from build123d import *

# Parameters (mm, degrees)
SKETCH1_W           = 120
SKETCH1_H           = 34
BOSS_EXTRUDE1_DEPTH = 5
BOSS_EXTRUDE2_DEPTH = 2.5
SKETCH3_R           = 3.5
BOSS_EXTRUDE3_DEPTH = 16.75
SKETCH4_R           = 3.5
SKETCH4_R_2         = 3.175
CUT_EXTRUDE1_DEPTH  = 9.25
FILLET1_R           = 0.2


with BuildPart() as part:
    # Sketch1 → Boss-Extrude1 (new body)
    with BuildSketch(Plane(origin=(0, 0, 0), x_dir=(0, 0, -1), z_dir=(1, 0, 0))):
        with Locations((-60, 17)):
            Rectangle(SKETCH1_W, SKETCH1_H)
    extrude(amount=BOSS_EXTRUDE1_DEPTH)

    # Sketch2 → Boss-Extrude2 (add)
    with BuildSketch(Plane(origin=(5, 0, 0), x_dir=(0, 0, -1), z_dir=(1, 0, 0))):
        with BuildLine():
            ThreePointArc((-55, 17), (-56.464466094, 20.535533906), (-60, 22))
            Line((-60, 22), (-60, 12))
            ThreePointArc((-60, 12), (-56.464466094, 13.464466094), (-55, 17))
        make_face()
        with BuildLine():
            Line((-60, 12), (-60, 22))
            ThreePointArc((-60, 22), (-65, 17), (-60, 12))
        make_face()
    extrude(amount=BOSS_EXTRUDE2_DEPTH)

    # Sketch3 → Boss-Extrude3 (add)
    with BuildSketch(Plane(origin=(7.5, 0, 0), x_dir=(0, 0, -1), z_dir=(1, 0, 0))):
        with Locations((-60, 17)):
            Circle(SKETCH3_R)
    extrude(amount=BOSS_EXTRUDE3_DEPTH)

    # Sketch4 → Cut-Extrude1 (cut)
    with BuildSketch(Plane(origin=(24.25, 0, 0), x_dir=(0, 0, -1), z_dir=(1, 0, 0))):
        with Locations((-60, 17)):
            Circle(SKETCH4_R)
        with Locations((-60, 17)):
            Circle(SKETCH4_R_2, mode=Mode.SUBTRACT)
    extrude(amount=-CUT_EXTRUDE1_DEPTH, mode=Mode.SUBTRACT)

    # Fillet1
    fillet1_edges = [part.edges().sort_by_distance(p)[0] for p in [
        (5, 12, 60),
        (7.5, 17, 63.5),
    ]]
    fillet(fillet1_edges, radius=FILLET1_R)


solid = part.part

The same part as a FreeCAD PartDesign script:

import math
import FreeCAD as App
import Part
import Sketcher

V = App.Vector


def edges_at(feature, points):
    """Names of the edges that pass closest to the given points."""
    edges = feature.Shape.Edges
    near = lambda p: min(range(len(edges)), key=lambda i: edges[i].distToShape(Part.Vertex(*p))[0])
    return sorted({f"Edge{near(p) + 1}" for p in points})


def add_polygon(sketch, points):
    """Adds a closed chain of lines whose ends are joined by coincident constraints."""
    first, n = sketch.GeometryCount, len(points)
    for a, b in zip(points, points[1:] + points[:1]):
        sketch.addGeometry(Part.LineSegment(App.Vector(*a, 0), App.Vector(*b, 0)), False)
    for i in range(n):
        sketch.addConstraint(Sketcher.Constraint("Coincident", first + i, 2, first + (i + 1) % n, 1))

doc = App.newDocument("Part")
body = doc.addObject("PartDesign::Body", "Body")

# Sketch on YZ plane
sketch1 = doc.addObject("Sketcher::SketchObject", "Sketch")
body.addObject(sketch1)
sketch1.AttachmentSupport = (doc.YZ_Plane, [""])
sketch1.MapMode = "FlatFace"
add_polygon(sketch1, [(34, 120), (0, 120), (0, 0), (34, 0)])  # lines 0-3
sketch1.addConstraint(Sketcher.Constraint("Horizontal", 0))
sketch1.addConstraint(Sketcher.Constraint("Vertical", 1))
sketch1.addConstraint(Sketcher.Constraint("Horizontal", 2))
sketch1.addConstraint(Sketcher.Constraint("Vertical", 3))
sketch1.addConstraint(Sketcher.Constraint("Coincident", 1, 2, -1, 1))
sketch1.addConstraint(Sketcher.Constraint("DistanceX", 0, 2, 0, 1, 34.0))
sketch1.addConstraint(Sketcher.Constraint("DistanceY", 1, 2, 1, 1, 120.0))
pad1 = doc.addObject("PartDesign::Pad", "Pad")
body.addObject(pad1)
pad1.Profile = sketch1
pad1.Length = 5

# Sketch on YZ plane
sketch2 = doc.addObject("Sketcher::SketchObject", "Sketch001")
body.addObject(sketch2)
sketch2.AttachmentSupport = (doc.YZ_Plane, [""])
sketch2.MapMode = "FlatFace"
sketch2.AttachmentOffset = App.Placement(V(0, 0, 5), App.Rotation())
sketch2.addGeometry(Part.ArcOfCircle(Part.Circle(V(17, 60, 0), V(0, 0, 1), 5), math.radians(-90), math.radians(0)), False)
sketch2.addGeometry(Part.ArcOfCircle(Part.Circle(V(17, 60, 0), V(0, 0, 1), 5), math.radians(0), math.radians(180)), False)
sketch2.addGeometry(Part.ArcOfCircle(Part.Circle(V(17, 60, 0), V(0, 0, 1), 5), math.radians(180), math.radians(270)), False)
sketch2.addConstraint(Sketcher.Constraint("Tangent", 0, 2, 1, 1))
sketch2.addConstraint(Sketcher.Constraint("Tangent", 1, 2, 2, 1))
sketch2.addConstraint(Sketcher.Constraint("Tangent", 2, 2, 0, 1))
sketch2.addConstraint(Sketcher.Constraint("Horizontal", 2, 3, 0, 2))
sketch2.addConstraint(Sketcher.Constraint("Horizontal", 0, 2, 1, 2))
sketch2.addConstraint(Sketcher.Constraint("Vertical", 1, 3, 2, 2))
sketch2.addConstraint(Sketcher.Constraint("Radius", 0, 5.0))
sketch2.addConstraint(Sketcher.Constraint("DistanceX", -1, 1, 0, 3, 17.0))
sketch2.addConstraint(Sketcher.Constraint("DistanceY", -1, 1, 0, 3, 60.0))
pad2 = doc.addObject("PartDesign::Pad", "Pad001")
body.addObject(pad2)
pad2.Profile = sketch2
pad2.Length = 2.5

# Sketch on YZ plane
sketch3 = doc.addObject("Sketcher::SketchObject", "Sketch002")
body.addObject(sketch3)
sketch3.AttachmentSupport = (doc.YZ_Plane, [""])
sketch3.MapMode = "FlatFace"
sketch3.AttachmentOffset = App.Placement(V(0, 0, 7.5), App.Rotation())
sketch3.addGeometry(Part.Circle(V(17, 60, 0), V(0, 0, 1), 3.5), False)
sketch3.addConstraint(Sketcher.Constraint("Diameter", 0, 7.0))
sketch3.addConstraint(Sketcher.Constraint("DistanceX", -1, 1, 0, 3, 17.0))
sketch3.addConstraint(Sketcher.Constraint("DistanceY", -1, 1, 0, 3, 60.0))
pad3 = doc.addObject("PartDesign::Pad", "Pad002")
body.addObject(pad3)
pad3.Profile = sketch3
pad3.Length = 16.75

# Sketch on YZ plane
sketch4 = doc.addObject("Sketcher::SketchObject", "Sketch003")
body.addObject(sketch4)
sketch4.AttachmentSupport = (doc.YZ_Plane, [""])
sketch4.MapMode = "FlatFace"
sketch4.AttachmentOffset = App.Placement(V(0, 0, 24.25), App.Rotation())
sketch4.addGeometry(Part.Circle(V(17, 60, 0), V(0, 0, 1), 3.5), False)
sketch4.addGeometry(Part.Circle(V(17, 60, 0), V(0, 0, 1), 3.175), False)
sketch4.addConstraint(Sketcher.Constraint("Coincident", 1, 3, 0, 3))
sketch4.addConstraint(Sketcher.Constraint("Diameter", 0, 7.0))
sketch4.addConstraint(Sketcher.Constraint("Diameter", 1, 6.35))
sketch4.addConstraint(Sketcher.Constraint("DistanceX", -1, 1, 0, 3, 17.0))
sketch4.addConstraint(Sketcher.Constraint("DistanceY", -1, 1, 0, 3, 60.0))
pocket1 = doc.addObject("PartDesign::Pocket", "Pocket")
body.addObject(pocket1)
pocket1.Profile = sketch4
pocket1.Length = 9.25
doc.recompute()

fillet = doc.addObject("PartDesign::Fillet", "Fillet")
body.addObject(fillet)
fillet.Base = (pocket1, edges_at(pocket1, [(5, 17, 65), (7.5, 17, 63.5)]))
fillet.Radius = 0.2

doc.recompute()
